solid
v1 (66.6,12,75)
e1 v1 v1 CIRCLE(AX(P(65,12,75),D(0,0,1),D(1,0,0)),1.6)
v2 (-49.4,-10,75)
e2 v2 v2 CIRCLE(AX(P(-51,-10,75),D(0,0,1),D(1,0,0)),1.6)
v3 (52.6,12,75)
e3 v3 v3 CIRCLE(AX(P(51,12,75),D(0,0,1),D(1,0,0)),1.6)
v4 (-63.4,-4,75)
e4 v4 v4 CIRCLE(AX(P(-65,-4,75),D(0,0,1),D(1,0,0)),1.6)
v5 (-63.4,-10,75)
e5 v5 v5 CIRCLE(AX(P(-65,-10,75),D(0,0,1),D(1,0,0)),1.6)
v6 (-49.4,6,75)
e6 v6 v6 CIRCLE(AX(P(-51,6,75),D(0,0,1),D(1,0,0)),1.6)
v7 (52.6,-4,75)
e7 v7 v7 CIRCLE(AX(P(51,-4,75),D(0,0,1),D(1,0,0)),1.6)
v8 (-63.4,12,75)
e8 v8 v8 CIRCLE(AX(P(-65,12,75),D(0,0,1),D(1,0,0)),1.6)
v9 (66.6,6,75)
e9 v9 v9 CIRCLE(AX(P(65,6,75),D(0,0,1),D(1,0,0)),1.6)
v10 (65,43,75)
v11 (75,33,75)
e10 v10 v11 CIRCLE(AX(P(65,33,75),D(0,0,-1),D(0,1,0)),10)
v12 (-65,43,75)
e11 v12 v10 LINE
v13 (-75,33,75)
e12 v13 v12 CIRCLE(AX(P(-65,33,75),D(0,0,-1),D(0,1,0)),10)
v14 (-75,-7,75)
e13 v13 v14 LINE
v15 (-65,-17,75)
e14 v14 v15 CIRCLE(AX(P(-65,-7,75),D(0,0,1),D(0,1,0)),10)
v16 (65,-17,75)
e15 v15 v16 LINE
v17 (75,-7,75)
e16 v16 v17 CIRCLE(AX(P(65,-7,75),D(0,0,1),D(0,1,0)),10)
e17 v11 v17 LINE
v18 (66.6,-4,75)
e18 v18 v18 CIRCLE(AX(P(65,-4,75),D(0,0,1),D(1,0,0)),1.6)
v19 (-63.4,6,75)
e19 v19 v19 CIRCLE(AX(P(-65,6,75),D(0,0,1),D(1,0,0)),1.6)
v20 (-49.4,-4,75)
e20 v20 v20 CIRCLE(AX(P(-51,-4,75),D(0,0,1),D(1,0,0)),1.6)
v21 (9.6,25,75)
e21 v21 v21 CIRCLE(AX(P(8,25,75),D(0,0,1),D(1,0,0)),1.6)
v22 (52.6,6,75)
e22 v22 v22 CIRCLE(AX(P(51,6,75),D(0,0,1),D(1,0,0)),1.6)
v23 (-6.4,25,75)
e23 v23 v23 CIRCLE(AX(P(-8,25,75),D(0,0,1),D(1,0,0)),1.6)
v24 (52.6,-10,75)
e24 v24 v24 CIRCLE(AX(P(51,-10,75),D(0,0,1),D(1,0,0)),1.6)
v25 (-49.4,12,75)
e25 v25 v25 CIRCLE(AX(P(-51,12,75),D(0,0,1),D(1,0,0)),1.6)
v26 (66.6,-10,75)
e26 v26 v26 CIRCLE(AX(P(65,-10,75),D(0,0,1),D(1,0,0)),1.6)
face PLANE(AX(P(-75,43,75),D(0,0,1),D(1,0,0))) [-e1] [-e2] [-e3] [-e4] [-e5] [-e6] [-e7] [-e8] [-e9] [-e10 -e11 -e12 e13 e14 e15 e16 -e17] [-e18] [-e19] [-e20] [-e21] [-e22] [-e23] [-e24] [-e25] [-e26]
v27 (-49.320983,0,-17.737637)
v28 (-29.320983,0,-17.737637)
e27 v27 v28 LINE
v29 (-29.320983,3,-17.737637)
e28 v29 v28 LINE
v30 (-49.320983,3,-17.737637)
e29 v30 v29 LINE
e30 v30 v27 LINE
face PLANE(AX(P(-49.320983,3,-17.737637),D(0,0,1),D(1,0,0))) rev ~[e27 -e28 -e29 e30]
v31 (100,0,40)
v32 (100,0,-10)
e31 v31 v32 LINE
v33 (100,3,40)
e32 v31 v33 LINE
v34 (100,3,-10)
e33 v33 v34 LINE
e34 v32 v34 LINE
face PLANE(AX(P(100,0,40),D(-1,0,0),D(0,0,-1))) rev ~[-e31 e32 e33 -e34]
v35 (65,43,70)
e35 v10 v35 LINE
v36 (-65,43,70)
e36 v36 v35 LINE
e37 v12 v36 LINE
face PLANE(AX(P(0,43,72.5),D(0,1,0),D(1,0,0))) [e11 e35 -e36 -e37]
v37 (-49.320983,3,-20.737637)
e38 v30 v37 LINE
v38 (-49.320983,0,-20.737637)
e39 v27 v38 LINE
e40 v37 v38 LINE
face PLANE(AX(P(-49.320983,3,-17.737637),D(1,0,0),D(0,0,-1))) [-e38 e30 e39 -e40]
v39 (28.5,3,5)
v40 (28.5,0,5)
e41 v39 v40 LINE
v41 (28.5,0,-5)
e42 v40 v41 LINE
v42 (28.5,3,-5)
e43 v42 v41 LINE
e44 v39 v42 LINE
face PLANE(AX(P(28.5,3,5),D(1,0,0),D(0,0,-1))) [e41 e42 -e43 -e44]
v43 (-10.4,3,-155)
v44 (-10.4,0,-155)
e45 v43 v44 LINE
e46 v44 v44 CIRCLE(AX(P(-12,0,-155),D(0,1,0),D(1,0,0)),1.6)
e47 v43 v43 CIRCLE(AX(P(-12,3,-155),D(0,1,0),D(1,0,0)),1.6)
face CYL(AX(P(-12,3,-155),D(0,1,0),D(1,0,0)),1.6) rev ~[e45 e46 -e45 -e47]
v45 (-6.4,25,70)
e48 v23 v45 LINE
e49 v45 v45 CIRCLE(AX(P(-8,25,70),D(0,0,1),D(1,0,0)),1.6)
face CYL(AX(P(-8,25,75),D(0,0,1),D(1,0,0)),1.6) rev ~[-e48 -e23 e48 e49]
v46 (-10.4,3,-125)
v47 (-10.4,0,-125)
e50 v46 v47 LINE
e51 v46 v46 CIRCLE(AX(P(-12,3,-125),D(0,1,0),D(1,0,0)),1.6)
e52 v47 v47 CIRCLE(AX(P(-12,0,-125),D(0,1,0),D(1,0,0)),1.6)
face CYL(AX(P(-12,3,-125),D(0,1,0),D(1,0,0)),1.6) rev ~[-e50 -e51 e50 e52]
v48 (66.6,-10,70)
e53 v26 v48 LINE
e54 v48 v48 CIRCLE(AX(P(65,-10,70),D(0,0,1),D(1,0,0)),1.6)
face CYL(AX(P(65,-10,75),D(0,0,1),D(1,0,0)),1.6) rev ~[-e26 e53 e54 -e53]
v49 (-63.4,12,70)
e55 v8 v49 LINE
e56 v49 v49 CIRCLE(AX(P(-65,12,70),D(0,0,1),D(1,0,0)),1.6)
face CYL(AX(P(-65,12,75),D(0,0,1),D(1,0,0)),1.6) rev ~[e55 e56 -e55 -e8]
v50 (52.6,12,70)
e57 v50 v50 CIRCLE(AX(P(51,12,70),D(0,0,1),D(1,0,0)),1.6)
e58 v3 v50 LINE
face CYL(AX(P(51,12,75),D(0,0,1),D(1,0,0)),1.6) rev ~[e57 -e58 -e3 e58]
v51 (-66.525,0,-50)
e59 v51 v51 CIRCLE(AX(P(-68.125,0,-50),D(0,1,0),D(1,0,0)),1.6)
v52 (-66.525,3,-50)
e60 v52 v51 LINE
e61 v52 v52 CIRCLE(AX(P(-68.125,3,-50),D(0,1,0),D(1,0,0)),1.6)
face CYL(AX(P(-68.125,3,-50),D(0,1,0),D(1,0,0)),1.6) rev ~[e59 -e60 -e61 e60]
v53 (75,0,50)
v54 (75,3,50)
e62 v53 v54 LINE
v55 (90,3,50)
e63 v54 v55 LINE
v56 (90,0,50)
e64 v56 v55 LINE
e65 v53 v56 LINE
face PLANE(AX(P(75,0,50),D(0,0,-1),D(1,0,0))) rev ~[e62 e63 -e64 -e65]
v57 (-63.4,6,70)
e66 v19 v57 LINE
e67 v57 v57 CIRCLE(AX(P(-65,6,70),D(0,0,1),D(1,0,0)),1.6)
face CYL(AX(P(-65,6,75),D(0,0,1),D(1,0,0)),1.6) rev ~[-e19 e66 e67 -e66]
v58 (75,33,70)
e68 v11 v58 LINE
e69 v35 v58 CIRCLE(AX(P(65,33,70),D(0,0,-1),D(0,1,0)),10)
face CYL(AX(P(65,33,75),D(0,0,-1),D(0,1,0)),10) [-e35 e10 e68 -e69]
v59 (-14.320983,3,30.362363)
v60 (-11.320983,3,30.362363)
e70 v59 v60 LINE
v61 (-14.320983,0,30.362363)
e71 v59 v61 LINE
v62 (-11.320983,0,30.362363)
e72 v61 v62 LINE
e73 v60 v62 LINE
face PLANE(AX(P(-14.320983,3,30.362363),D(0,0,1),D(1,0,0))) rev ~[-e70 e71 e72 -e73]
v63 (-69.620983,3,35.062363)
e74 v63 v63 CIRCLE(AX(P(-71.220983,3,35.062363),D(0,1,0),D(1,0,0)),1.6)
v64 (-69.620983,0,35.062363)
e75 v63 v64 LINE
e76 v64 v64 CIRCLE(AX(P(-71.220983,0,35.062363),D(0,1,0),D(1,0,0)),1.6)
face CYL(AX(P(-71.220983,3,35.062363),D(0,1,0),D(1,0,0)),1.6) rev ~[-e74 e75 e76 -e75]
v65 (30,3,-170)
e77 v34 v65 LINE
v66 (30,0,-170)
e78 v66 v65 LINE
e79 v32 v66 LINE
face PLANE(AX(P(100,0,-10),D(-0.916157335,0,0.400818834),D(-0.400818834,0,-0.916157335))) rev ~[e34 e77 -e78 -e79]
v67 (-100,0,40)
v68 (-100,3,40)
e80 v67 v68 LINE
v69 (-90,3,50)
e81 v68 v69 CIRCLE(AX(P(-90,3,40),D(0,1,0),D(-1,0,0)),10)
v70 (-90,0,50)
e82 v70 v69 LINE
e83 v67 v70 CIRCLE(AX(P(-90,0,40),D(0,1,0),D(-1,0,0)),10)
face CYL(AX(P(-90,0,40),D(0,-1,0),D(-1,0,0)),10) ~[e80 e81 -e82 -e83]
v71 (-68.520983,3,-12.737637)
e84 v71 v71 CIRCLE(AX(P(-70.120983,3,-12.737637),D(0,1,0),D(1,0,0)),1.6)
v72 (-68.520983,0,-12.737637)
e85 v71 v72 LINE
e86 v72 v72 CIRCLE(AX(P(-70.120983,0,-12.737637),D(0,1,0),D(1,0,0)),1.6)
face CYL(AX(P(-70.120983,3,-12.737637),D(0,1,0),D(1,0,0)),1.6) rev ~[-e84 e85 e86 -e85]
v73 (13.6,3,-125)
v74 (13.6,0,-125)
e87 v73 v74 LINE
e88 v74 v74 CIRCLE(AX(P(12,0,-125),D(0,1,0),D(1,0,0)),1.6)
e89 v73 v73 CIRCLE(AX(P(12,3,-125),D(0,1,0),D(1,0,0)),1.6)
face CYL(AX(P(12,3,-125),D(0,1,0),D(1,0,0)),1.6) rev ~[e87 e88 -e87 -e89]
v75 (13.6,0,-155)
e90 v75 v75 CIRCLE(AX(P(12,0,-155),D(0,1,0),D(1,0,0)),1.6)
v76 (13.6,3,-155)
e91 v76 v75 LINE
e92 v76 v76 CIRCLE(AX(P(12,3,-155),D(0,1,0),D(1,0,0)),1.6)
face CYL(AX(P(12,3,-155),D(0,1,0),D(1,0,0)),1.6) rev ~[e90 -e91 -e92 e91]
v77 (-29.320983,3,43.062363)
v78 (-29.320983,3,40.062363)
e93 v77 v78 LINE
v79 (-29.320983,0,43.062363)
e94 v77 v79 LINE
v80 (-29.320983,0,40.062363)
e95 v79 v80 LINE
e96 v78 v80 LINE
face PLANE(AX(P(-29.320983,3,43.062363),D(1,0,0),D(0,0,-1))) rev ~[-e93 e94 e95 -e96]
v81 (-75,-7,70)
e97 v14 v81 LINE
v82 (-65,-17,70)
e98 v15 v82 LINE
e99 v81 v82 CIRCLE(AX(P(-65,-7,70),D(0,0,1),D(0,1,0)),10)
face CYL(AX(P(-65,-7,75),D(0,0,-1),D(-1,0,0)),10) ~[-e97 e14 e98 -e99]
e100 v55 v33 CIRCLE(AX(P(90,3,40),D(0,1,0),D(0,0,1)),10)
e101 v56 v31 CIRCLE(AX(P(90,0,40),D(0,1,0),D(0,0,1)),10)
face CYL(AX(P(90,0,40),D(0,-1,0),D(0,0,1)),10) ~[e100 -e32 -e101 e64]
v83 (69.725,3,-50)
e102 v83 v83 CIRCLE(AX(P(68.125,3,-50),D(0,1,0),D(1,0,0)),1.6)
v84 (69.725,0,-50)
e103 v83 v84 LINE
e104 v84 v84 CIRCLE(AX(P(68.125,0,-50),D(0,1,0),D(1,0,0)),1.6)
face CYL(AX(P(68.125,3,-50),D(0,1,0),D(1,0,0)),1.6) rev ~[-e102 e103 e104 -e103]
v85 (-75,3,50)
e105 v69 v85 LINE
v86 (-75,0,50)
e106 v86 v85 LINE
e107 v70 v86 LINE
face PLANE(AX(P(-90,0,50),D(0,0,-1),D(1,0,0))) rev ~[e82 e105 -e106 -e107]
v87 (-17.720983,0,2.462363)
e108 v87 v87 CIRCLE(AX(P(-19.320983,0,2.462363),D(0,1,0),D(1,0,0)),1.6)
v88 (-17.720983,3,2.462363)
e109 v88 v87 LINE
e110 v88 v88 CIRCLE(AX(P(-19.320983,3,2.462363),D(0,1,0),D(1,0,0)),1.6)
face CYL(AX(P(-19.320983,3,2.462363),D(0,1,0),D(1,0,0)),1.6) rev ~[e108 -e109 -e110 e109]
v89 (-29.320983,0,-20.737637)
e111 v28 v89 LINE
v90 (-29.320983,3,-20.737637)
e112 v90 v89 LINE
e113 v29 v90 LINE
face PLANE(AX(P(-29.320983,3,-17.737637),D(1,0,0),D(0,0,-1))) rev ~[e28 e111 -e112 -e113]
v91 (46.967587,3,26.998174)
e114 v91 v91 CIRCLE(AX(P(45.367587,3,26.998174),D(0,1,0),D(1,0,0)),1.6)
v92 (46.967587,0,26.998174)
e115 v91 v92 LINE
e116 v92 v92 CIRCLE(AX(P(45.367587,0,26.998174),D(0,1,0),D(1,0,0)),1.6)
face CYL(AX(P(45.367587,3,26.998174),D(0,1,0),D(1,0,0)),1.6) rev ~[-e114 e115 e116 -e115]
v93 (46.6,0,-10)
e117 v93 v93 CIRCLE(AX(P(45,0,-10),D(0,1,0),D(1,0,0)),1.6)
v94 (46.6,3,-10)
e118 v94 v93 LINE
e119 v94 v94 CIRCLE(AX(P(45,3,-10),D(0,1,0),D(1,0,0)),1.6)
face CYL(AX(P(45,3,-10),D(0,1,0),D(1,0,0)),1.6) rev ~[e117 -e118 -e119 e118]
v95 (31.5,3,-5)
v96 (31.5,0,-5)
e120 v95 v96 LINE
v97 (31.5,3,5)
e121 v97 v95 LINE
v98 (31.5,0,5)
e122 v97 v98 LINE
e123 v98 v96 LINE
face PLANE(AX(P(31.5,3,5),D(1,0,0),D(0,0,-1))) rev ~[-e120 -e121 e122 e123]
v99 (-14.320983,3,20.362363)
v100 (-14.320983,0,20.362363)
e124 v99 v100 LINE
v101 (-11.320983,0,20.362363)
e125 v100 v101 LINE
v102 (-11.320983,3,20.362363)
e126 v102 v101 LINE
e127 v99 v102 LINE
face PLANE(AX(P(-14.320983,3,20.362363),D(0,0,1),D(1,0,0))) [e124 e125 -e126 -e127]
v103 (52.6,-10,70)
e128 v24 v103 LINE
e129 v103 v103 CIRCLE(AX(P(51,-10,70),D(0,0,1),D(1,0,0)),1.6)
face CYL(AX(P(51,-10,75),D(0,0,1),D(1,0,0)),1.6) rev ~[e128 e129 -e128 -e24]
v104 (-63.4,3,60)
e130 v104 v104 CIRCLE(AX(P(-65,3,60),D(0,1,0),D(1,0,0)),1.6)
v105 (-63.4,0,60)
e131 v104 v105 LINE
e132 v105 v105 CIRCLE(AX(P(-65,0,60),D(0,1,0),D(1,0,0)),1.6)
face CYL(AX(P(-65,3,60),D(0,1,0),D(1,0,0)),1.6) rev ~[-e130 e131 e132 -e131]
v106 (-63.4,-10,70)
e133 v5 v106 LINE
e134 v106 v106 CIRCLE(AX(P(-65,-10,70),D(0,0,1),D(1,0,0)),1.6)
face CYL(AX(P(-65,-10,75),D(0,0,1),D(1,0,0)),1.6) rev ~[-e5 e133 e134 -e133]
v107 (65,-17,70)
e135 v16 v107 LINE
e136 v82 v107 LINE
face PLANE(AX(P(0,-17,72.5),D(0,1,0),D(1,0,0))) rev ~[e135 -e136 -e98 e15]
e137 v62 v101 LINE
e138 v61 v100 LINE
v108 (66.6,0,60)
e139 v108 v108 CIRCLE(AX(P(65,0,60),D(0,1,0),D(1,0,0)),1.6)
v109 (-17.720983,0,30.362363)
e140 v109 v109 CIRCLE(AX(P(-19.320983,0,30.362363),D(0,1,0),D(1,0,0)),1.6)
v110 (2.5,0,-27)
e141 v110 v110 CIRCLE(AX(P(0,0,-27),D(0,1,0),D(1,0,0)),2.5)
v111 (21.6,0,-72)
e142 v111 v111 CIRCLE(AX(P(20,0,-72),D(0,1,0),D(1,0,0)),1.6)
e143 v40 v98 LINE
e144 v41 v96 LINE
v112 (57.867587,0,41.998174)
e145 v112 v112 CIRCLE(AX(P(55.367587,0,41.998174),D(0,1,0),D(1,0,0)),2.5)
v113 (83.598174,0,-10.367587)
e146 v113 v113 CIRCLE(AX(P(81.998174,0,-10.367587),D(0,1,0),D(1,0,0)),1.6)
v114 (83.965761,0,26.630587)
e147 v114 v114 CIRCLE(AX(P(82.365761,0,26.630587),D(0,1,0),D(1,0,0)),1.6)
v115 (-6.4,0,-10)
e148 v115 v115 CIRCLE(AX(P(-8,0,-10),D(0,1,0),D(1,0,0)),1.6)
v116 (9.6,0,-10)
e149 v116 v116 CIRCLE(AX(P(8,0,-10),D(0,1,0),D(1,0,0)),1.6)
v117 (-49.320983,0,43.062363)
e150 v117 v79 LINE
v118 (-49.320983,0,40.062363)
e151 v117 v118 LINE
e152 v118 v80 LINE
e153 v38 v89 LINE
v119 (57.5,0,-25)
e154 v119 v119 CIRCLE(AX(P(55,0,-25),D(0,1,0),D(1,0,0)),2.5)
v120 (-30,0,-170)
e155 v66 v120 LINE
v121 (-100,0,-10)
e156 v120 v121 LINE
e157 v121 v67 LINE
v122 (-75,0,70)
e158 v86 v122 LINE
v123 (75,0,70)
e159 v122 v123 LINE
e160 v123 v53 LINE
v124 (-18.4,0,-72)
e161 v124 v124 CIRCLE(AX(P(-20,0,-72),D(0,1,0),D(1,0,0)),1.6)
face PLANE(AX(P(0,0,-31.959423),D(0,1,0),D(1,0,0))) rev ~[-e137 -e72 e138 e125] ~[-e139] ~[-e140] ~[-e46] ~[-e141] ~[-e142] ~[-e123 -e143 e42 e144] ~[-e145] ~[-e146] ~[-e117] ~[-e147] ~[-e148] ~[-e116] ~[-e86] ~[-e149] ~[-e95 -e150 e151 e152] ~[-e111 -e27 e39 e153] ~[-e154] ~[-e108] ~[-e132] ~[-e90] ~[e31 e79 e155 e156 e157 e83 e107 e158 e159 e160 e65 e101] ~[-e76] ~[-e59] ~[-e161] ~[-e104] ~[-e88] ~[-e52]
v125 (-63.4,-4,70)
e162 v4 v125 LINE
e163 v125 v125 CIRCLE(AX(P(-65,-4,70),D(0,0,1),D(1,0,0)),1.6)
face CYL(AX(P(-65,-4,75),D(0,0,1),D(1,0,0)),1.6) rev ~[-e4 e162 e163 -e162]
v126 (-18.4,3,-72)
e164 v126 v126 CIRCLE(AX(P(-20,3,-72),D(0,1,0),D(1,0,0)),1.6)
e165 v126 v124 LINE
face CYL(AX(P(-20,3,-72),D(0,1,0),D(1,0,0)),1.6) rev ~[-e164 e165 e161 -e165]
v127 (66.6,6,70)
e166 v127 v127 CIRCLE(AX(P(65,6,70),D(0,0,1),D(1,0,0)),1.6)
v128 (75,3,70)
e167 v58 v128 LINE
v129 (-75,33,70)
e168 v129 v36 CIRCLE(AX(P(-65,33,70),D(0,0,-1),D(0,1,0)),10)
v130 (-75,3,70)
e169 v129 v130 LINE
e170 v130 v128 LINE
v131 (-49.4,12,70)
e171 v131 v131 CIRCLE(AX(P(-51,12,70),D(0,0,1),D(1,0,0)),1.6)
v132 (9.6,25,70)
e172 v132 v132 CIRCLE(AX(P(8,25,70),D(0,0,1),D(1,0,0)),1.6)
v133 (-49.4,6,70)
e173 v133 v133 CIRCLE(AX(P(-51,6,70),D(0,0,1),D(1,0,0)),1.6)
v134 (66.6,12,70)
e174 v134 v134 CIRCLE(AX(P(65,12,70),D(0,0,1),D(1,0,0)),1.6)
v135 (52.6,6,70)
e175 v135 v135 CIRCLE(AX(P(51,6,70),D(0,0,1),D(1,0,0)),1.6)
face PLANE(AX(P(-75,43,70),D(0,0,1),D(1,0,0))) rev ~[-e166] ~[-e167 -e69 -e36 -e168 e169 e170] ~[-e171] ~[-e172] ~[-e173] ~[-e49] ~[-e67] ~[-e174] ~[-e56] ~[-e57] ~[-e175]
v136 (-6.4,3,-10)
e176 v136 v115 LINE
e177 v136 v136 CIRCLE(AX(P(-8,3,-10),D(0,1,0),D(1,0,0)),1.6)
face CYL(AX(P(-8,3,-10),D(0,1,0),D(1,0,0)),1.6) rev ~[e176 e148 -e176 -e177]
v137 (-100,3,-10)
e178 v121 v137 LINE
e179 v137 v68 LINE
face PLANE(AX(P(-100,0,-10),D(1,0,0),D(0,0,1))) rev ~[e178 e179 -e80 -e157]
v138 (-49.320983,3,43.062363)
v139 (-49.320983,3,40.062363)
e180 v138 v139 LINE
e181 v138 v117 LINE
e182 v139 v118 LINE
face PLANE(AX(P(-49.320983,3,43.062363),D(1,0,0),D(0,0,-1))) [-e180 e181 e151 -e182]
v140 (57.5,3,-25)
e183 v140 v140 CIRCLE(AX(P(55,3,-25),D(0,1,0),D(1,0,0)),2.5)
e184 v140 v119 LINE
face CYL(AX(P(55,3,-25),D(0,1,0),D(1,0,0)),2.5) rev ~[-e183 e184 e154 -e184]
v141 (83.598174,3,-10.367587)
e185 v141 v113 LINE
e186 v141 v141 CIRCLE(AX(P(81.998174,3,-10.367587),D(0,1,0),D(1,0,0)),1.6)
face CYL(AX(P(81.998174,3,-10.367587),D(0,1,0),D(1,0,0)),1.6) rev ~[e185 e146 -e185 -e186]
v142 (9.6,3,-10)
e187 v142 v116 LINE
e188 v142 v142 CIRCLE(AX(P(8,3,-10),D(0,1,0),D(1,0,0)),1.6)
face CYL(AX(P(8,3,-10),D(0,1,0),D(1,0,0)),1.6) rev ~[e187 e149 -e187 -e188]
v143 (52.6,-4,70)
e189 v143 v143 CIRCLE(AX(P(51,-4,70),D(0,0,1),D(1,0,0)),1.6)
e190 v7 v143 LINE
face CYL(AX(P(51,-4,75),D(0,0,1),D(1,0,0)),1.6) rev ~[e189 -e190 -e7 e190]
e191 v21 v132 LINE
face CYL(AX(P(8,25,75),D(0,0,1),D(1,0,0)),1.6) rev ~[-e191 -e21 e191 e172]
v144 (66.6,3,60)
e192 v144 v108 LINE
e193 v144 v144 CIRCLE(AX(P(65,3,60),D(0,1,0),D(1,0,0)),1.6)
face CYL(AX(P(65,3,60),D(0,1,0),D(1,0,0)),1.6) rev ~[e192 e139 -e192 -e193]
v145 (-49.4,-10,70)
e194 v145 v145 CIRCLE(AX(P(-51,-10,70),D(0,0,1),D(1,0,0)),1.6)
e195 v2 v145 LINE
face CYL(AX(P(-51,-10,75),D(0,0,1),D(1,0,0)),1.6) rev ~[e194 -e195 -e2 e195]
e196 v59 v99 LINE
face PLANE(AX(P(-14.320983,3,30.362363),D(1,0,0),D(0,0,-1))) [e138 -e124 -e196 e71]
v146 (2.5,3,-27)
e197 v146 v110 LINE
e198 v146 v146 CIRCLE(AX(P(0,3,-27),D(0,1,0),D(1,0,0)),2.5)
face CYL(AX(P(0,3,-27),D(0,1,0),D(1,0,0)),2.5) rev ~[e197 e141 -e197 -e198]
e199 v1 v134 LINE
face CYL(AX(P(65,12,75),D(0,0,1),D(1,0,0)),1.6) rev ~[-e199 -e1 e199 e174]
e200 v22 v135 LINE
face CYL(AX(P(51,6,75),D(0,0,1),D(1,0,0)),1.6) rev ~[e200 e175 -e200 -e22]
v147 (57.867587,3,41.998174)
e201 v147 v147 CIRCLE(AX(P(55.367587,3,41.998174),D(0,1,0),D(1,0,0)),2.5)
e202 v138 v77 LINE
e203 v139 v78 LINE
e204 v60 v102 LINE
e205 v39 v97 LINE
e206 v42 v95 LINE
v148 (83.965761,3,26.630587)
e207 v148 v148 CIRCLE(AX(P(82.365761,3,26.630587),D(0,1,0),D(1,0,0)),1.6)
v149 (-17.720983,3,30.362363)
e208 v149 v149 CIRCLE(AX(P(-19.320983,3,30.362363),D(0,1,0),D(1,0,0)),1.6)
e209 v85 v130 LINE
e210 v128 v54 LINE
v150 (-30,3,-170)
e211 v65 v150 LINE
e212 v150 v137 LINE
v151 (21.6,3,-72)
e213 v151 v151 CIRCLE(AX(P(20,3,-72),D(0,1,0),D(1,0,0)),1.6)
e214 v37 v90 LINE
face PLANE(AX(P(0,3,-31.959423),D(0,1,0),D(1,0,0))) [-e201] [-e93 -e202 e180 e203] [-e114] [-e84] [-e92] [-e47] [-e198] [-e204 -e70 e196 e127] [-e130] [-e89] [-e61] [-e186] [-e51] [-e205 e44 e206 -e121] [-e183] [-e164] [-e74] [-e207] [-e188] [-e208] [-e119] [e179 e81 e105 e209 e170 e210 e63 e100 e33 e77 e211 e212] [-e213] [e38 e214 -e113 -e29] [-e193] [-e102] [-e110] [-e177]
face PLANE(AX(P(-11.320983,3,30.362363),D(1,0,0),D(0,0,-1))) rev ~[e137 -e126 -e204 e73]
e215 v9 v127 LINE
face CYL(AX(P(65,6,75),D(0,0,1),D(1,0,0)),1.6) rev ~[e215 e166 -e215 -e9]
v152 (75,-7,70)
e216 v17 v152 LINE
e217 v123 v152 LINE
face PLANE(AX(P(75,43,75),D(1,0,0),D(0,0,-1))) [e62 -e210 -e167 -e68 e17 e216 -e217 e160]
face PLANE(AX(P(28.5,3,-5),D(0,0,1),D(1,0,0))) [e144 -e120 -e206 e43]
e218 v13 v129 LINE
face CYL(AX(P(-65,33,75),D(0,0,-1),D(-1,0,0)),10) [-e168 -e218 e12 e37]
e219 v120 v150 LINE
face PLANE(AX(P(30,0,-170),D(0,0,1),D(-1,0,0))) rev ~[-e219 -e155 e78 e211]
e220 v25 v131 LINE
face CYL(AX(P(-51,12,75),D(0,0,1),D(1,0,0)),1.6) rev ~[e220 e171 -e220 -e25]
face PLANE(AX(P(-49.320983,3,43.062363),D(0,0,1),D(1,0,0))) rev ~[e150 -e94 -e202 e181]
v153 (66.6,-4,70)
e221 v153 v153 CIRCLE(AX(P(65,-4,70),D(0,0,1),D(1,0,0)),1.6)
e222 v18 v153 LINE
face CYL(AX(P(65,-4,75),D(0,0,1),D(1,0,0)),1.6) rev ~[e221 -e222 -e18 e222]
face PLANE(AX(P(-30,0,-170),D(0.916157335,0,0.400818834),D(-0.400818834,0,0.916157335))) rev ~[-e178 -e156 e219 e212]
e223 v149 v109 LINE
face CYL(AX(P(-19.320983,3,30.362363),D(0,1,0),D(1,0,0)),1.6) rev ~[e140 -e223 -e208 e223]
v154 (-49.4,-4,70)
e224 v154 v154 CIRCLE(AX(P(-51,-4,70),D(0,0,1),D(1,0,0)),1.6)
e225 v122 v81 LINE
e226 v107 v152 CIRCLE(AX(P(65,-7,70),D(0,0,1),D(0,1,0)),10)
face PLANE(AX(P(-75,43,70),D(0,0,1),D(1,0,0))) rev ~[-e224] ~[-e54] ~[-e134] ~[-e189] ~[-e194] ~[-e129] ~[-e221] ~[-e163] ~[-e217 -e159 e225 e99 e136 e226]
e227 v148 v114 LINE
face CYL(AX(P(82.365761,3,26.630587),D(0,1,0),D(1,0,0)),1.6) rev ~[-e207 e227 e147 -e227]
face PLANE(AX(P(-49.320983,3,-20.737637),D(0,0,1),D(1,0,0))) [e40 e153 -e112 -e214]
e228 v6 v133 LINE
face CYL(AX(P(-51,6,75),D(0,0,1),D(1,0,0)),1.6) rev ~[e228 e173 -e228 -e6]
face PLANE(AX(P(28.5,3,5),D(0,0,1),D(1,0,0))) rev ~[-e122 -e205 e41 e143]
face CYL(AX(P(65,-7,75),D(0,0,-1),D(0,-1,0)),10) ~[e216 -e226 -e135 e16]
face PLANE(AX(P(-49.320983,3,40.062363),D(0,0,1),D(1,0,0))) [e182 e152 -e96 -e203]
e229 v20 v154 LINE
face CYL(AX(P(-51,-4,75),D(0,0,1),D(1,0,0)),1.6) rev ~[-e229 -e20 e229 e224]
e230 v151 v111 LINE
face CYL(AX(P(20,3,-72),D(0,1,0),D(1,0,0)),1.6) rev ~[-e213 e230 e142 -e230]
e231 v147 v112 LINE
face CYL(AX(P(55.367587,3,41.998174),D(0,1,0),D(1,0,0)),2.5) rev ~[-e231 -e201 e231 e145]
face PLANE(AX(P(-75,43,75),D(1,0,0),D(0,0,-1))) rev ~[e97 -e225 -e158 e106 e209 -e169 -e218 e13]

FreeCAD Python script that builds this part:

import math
import FreeCAD as App
import Part
import Sketcher
from FreeCAD import Vector


def edges_at(feature, points):
    """Names of the edges that pass closest to the given points."""
    edges = feature.Shape.Edges
    near = lambda p: min(range(len(edges)), key=lambda i: edges[i].distToShape(Part.Vertex(*p))[0])
    return sorted({f"Edge{near(p) + 1}" for p in points})

doc = App.newDocument("Part")
params = doc.addObject("Spreadsheet::Sheet", "Params")
for row, (alias, value) in enumerate([
    ("sketch1_radius", "10 mm"),
    ("sketch1_width", "60 mm"),
    ("sketch1_width2", "15 mm"),
    ("sketch1_width3", "150 mm"),
    ("sketch1_height", "50 mm"),
    ("pad1_length", "3 mm"),
    ("sketch2_diameter", "3.2 mm"),
    ("sketch2_width", "20 mm"),
    ("sketch2_width2", "3 mm"),
    ("sketch2_height", "10 mm"),
    ("sketch3_diameter", "3.2 mm"),
    ("sketch4_diameter", "3.2 mm"),
    ("pocket3_length", "10 mm"),
    ("sketch5_diameter", "5 mm"),
    ("sketch5_diameter2", "3.2 mm"),
    ("sketch5_width", "3 mm"),
    ("sketch5_height", "10 mm"),
    ("pocket4_length", "10 mm"),
    ("sketch6_width", "150 mm"),
    ("sketch6_height", "5 mm"),
    ("pad2_length", "60 mm"),
    ("fillet_radius", "10 mm"),
    ("sketch7_diameter", "3.2 mm"),
    ("pocket5_length", "10 mm"),
], start=1):
    params.set(f"A{row}", alias)
    params.set(f"B{row}", "=" + value)
    params.setAlias(f"B{row}", alias)

body = doc.addObject("PartDesign::Body", "Body")

# Sketch on XZ plane
sketch1 = doc.addObject("Sketcher::SketchObject", "Sketch")
body.addObject(sketch1)
sketch1.AttachmentSupport = (doc.XZ_Plane, [""])
sketch1.MapMode = "FlatFace"
sketch1.addGeometry(Part.LineSegment(Vector(100, 40, 0), Vector(100, -10, 0)), False)
sketch1.addGeometry(Part.LineSegment(Vector(100, -10, 0), Vector(30, -170, 0)), False)
sketch1.addGeometry(Part.LineSegment(Vector(30, -170, 0), Vector(-30, -170, 0)), False)
sketch1.addGeometry(Part.LineSegment(Vector(-30, -170, 0), Vector(-100, -10, 0)), False)
sketch1.addGeometry(Part.LineSegment(Vector(-100, -10, 0), Vector(-100, 40, 0)), False)
sketch1.addGeometry(Part.ArcOfCircle(Part.Circle(Vector(-90, 40, 0), Vector(0, 0, 1), 10), math.radians(90), math.radians(180)), False)
sketch1.addGeometry(Part.LineSegment(Vector(-90, 50, 0), Vector(-75, 50, 0)), False)
sketch1.addGeometry(Part.LineSegment(Vector(-75, 50, 0), Vector(-75, 70, 0)), False)
sketch1.addGeometry(Part.LineSegment(Vector(-75, 70, 0), Vector(75, 70, 0)), False)
sketch1.addGeometry(Part.LineSegment(Vector(75, 70, 0), Vector(75, 50, 0)), False)
sketch1.addGeometry(Part.LineSegment(Vector(75, 50, 0), Vector(90, 50, 0)), False)
sketch1.addGeometry(Part.ArcOfCircle(Part.Circle(Vector(90, 40, 0), Vector(0, 0, 1), 10), math.radians(0), math.radians(90)), False)
sketch1.addConstraint(Sketcher.Constraint("Coincident", 0, 2, 1, 1))
sketch1.addConstraint(Sketcher.Constraint("Coincident", 1, 2, 2, 1))
sketch1.addConstraint(Sketcher.Constraint("Coincident", 2, 2, 3, 1))
sketch1.addConstraint(Sketcher.Constraint("Coincident", 3, 2, 4, 1))
sketch1.addConstraint(Sketcher.Constraint("Tangent", 4, 2, 5, 2))
sketch1.addConstraint(Sketcher.Constraint("Tangent", 5, 1, 6, 1))
sketch1.addConstraint(Sketcher.Constraint("Coincident", 6, 2, 7, 1))
sketch1.addConstraint(Sketcher.Constraint("Coincident", 7, 2, 8, 1))
sketch1.addConstraint(Sketcher.Constraint("Coincident", 8, 2, 9, 1))
sketch1.addConstraint(Sketcher.Constraint("Coincident", 9, 2, 10, 1))
sketch1.addConstraint(Sketcher.Constraint("Tangent", 10, 2, 11, 2))
sketch1.addConstraint(Sketcher.Constraint("Tangent", 11, 1, 0, 1))
sketch1.addConstraint(Sketcher.Constraint("Vertical", 0))
sketch1.addConstraint(Sketcher.Constraint("Horizontal", 2))
sketch1.addConstraint(Sketcher.Constraint("Vertical", 4))
sketch1.addConstraint(Sketcher.Constraint("Horizontal", 6))
sketch1.addConstraint(Sketcher.Constraint("Vertical", 7))
sketch1.addConstraint(Sketcher.Constraint("Horizontal", 8))
sketch1.addConstraint(Sketcher.Constraint("Vertical", 9))
sketch1.addConstraint(Sketcher.Constraint("Horizontal", 10))
sketch1.addConstraint(Sketcher.Constraint("Equal", 5, 11))
sketch1.addConstraint(Sketcher.Constraint("Symmetric", 5, 3, 11, 3, -2))
sketch1.addConstraint(Sketcher.Constraint("Horizontal", 0, 2, 3, 2))
sketch1.addConstraint(Sketcher.Constraint("Equal", 6, 10))
sketch1.addConstraint(Sketcher.Constraint("Equal", 1, 3))
sketch1.addConstraint(Sketcher.Constraint("Radius", 5, 10.0))
sketch1.addConstraint(Sketcher.Constraint("DistanceX", 2, 2, 2, 1, 60.0))
sketch1.addConstraint(Sketcher.Constraint("DistanceX", 6, 1, 6, 2, 15.0))
sketch1.addConstraint(Sketcher.Constraint("DistanceX", 8, 1, 8, 2, 150.0))
sketch1.addConstraint(Sketcher.Constraint("DistanceY", 0, 2, 0, 1, 50.0))
sketch1.addConstraint(Sketcher.Constraint("DistanceY", 7, 1, 7, 2, 20.0))
sketch1.addConstraint(Sketcher.Constraint("DistanceY", -1, 1, 5, 3, 40.0))
sketch1.addConstraint(Sketcher.Constraint("DistanceY", 1, 2, -1, 1, 170.0))
sketch1.setExpression("Constraints[25]", "Params.sketch1_radius")
sketch1.setExpression("Constraints[26]", "Params.sketch1_width")
sketch1.setExpression("Constraints[27]", "Params.sketch1_width2")
sketch1.setExpression("Constraints[28]", "Params.sketch1_width3")
sketch1.setExpression("Constraints[29]", "Params.sketch1_height")
pad1 = doc.addObject("PartDesign::Pad", "Pad")
body.addObject(pad1)
pad1.Profile = sketch1
pad1.setExpression("Length", "Params.pad1_length")
pad1.Reversed = True

# Sketch on XZ plane
sketch2 = doc.addObject("Sketcher::SketchObject", "Sketch001")
body.addObject(sketch2)
sketch2.AttachmentSupport = (doc.XZ_Plane, [""])
sketch2.MapMode = "FlatFace"
sketch2.AttachmentOffset = App.Placement(Vector(0, 0, -3), App.Rotation())
sketch2.addGeometry(Part.Circle(Vector(-70.1, -12.7, 0), Vector(0, 0, 1), 1.6), False)
sketch2.addGeometry(Part.Circle(Vector(-71.2, 35.1, 0), Vector(0, 0, 1), 1.6), False)
sketch2.addGeometry(Part.Circle(Vector(-19.3, 2.5, 0), Vector(0, 0, 1), 1.6), False)
sketch2.addGeometry(Part.Circle(Vector(-19.3, 30.4, 0), Vector(0, 0, 1), 1.6), False)
sketch2.addGeometry(Part.LineSegment(Vector(-49.3, 40.1, 0), Vector(-49.3, 43.1, 0)), False)
sketch2.addGeometry(Part.LineSegment(Vector(-49.3, 43.1, 0), Vector(-29.3, 43.1, 0)), False)
sketch2.addGeometry(Part.LineSegment(Vector(-29.3, 43.1, 0), Vector(-29.3, 40.1, 0)), False)
sketch2.addGeometry(Part.LineSegment(Vector(-29.3, 40.1, 0), Vector(-49.3, 40.1, 0)), False)
sketch2.addGeometry(Part.LineSegment(Vector(-49.3, -20.7, 0), Vector(-49.3, -17.7, 0)), False)
sketch2.addGeometry(Part.LineSegment(Vector(-49.3, -17.7, 0), Vector(-29.3, -17.7, 0)), False)
sketch2.addGeometry(Part.LineSegment(Vector(-29.3, -17.7, 0), Vector(-29.3, -20.7, 0)), False)
sketch2.addGeometry(Part.LineSegment(Vector(-29.3, -20.7, 0), Vector(-49.3, -20.7, 0)), False)
sketch2.addGeometry(Part.LineSegment(Vector(-14.3, 20.4, 0), Vector(-14.3, 30.4, 0)), False)
sketch2.addGeometry(Part.LineSegment(Vector(-14.3, 30.4, 0), Vector(-11.3, 30.4, 0)), False)
sketch2.addGeometry(Part.LineSegment(Vector(-11.3, 30.4, 0), Vector(-11.3, 20.4, 0)), False)
sketch2.addGeometry(Part.LineSegment(Vector(-11.3, 20.4, 0), Vector(-14.3, 20.4, 0)), False)
sketch2.addConstraint(Sketcher.Constraint("Coincident", 4, 2, 5, 1))
sketch2.addConstraint(Sketcher.Constraint("Coincident", 5, 2, 6, 1))
sketch2.addConstraint(Sketcher.Constraint("Coincident", 6, 2, 7, 1))
sketch2.addConstraint(Sketcher.Constraint("Coincident", 7, 2, 4, 1))
sketch2.addConstraint(Sketcher.Constraint("Coincident", 8, 2, 9, 1))
sketch2.addConstraint(Sketcher.Constraint("Coincident", 9, 2, 10, 1))
sketch2.addConstraint(Sketcher.Constraint("Coincident", 10, 2, 11, 1))
sketch2.addConstraint(Sketcher.Constraint("Coincident", 11, 2, 8, 1))
sketch2.addConstraint(Sketcher.Constraint("Coincident", 12, 2, 13, 1))
sketch2.addConstraint(Sketcher.Constraint("Coincident", 13, 2, 14, 1))
sketch2.addConstraint(Sketcher.Constraint("Coincident", 14, 2, 15, 1))
sketch2.addConstraint(Sketcher.Constraint("Coincident", 15, 2, 12, 1))
sketch2.addConstraint(Sketcher.Constraint("Vertical", 4))
sketch2.addConstraint(Sketcher.Constraint("Horizontal", 5))
sketch2.addConstraint(Sketcher.Constraint("Vertical", 6))
sketch2.addConstraint(Sketcher.Constraint("Horizontal", 7))
sketch2.addConstraint(Sketcher.Constraint("Vertical", 8))
sketch2.addConstraint(Sketcher.Constraint("Horizontal", 9))
sketch2.addConstraint(Sketcher.Constraint("Vertical", 10))
sketch2.addConstraint(Sketcher.Constraint("Horizontal", 11))
sketch2.addConstraint(Sketcher.Constraint("Vertical", 12))
sketch2.addConstraint(Sketcher.Constraint("Horizontal", 13))
sketch2.addConstraint(Sketcher.Constraint("Vertical", 14))
sketch2.addConstraint(Sketcher.Constraint("Horizontal", 15))
sketch2.addConstraint(Sketcher.Constraint("Equal", 0, 1))
sketch2.addConstraint(Sketcher.Constraint("Equal", 1, 2))
sketch2.addConstraint(Sketcher.Constraint("Equal", 2, 3))
sketch2.addConstraint(Sketcher.Constraint("Horizontal", 3, 3, 12, 2))
sketch2.addConstraint(Sketcher.Constraint("Vertical", 2, 3, 3, 3))
sketch2.addConstraint(Sketcher.Constraint("Vertical", 7, 2, 8, 2))
sketch2.addConstraint(Sketcher.Constraint("Vertical", 6, 2, 9, 2))
sketch2.addConstraint(Sketcher.Constraint("Equal", 15, 4))
sketch2.addConstraint(Sketcher.Constraint("Equal", 6, 8))
sketch2.addConstraint(Sketcher.Constraint("Diameter", 0, 3.2))
sketch2.addConstraint(Sketcher.Constraint("DistanceX", 5, 1, 5, 2, 20.0))
sketch2.addConstraint(Sketcher.Constraint("DistanceX", 13, 1, 13, 2, 3.0))
sketch2.addConstraint(Sketcher.Constraint("DistanceY", 12, 1, 12, 2, 10.0))
sketch2.addConstraint(Sketcher.Constraint("DistanceY", 1, 3, 4, 2, 8.0))
sketch2.addConstraint(Sketcher.Constraint("DistanceX", 4, 2, 3, 3, 30.0))
sketch2.addConstraint(Sketcher.Constraint("DistanceY", 8, 2, 0, 3, 5.0))
sketch2.addConstraint(Sketcher.Constraint("DistanceX", 3, 3, 12, 2, 5.0))
sketch2.addConstraint(Sketcher.Constraint("DistanceX", 1, 3, 0, 3, 1.1))
sketch2.addConstraint(Sketcher.Constraint("DistanceY", 0, 3, 1, 3, 47.8))
sketch2.addConstraint(Sketcher.Constraint("DistanceX", 0, 3, 2, 3, 50.8))
sketch2.addConstraint(Sketcher.Constraint("DistanceY", 0, 3, 2, 3, 15.2))
sketch2.addConstraint(Sketcher.Constraint("DistanceY", 2, 3, 3, 3, 27.9))
sketch2.addConstraint(Sketcher.Constraint("DistanceX", 0, 3, -1, 1, 70.120983))
sketch2.addConstraint(Sketcher.Constraint("DistanceY", 0, 3, -1, 1, 12.737637))
sketch2.setExpression("Constraints[33]", "Params.sketch2_diameter")
sketch2.setExpression("Constraints[34]", "Params.sketch2_width")
sketch2.setExpression("Constraints[35]", "Params.sketch2_width2")
sketch2.setExpression("Constraints[36]", "Params.sketch2_height")
pocket1 = doc.addObject("PartDesign::Pocket", "Pocket")
body.addObject(pocket1)
pocket1.Profile = sketch2
pocket1.Type = "ThroughAll"
pocket1.Reversed = True

# Sketch on XZ plane
sketch3 = doc.addObject("Sketcher::SketchObject", "Sketch002")
body.addObject(sketch3)
sketch3.AttachmentSupport = (doc.XZ_Plane, [""])
sketch3.MapMode = "FlatFace"
sketch3.AttachmentOffset = App.Placement(Vector(0, 0, -3), App.Rotation())
sketch3.addGeometry(Part.Circle(Vector(12, -155, 0), Vector(0, 0, 1), 1.6), False)
sketch3.addGeometry(Part.Circle(Vector(-12, -155, 0), Vector(0, 0, 1), 1.6), False)
sketch3.addGeometry(Part.Circle(Vector(12, -125, 0), Vector(0, 0, 1), 1.6), False)
sketch3.addGeometry(Part.Circle(Vector(-12, -125, 0), Vector(0, 0, 1), 1.6), False)
sketch3.addConstraint(Sketcher.Constraint("Equal", 0, 1))
sketch3.addConstraint(Sketcher.Constraint("Equal", 1, 2))
sketch3.addConstraint(Sketcher.Constraint("Equal", 2, 3))
sketch3.addConstraint(Sketcher.Constraint("Symmetric", 0, 3, 1, 3, -2))
sketch3.addConstraint(Sketcher.Constraint("Symmetric", 2, 3, 3, 3, -2))
sketch3.addConstraint(Sketcher.Constraint("Vertical", 0, 3, 2, 3))
sketch3.addConstraint(Sketcher.Constraint("Diameter", 0, 3.2))
sketch3.addConstraint(Sketcher.Constraint("DistanceX", -1, 1, 0, 3, 12.0))
sketch3.addConstraint(Sketcher.Constraint("DistanceY", 0, 3, -1, 1, 155.0))
sketch3.addConstraint(Sketcher.Constraint("DistanceY", 2, 3, -1, 1, 125.0))
sketch3.setExpression("Constraints[6]", "Params.sketch3_diameter")
pocket2 = doc.addObject("PartDesign::Pocket", "Pocket001")
body.addObject(pocket2)
pocket2.Profile = sketch3
pocket2.Type = "ThroughAll"
pocket2.Reversed = True

# Sketch on XZ plane
sketch4 = doc.addObject("Sketcher::SketchObject", "Sketch003")
body.addObject(sketch4)
sketch4.AttachmentSupport = (doc.XZ_Plane, [""])
sketch4.MapMode = "FlatFace"
sketch4.AttachmentOffset = App.Placement(Vector(0, 0, -3), App.Rotation())
sketch4.addGeometry(Part.Circle(Vector(8, -10, 0), Vector(0, 0, 1), 1.6), False)
sketch4.addGeometry(Part.Circle(Vector(-8, -10, 0), Vector(0, 0, 1), 1.6), False)
sketch4.addGeometry(Part.Circle(Vector(-65, 60, 0), Vector(0, 0, 1), 1.6), False)
sketch4.addGeometry(Part.Circle(Vector(65, 60, 0), Vector(0, 0, 1), 1.6), False)
sketch4.addConstraint(Sketcher.Constraint("Equal", 0, 1))
sketch4.addConstraint(Sketcher.Constraint("Equal", 1, 2))
sketch4.addConstraint(Sketcher.Constraint("Equal", 2, 3))
sketch4.addConstraint(Sketcher.Constraint("Symmetric", 0, 3, 1, 3, -2))
sketch4.addConstraint(Sketcher.Constraint("Symmetric", 2, 3, 3, 3, -2))
sketch4.addConstraint(Sketcher.Constraint("Diameter", 0, 3.2))
sketch4.addConstraint(Sketcher.Constraint("DistanceX", -1, 1, 0, 3, 8.0))
sketch4.addConstraint(Sketcher.Constraint("DistanceY", 0, 3, -1, 1, 10.0))
sketch4.addConstraint(Sketcher.Constraint("DistanceX", 2, 3, -1, 1, 65.0))
sketch4.addConstraint(Sketcher.Constraint("DistanceY", -1, 1, 2, 3, 60.0))
sketch4.setExpression("Constraints[5]", "Params.sketch4_diameter")
pocket3 = doc.addObject("PartDesign::Pocket", "Pocket002")
body.addObject(pocket3)
pocket3.Profile = sketch4
pocket3.setExpression("Length", "Params.pocket3_length")
pocket3.Reversed = True

# Sketch on XZ plane
sketch5 = doc.addObject("Sketcher::SketchObject", "Sketch004")
body.addObject(sketch5)
sketch5.AttachmentSupport = (doc.XZ_Plane, [""])
sketch5.MapMode = "FlatFace"
sketch5.AttachmentOffset = App.Placement(Vector(0, 0, -3), App.Rotation())
sketch5.addGeometry(Part.Circle(Vector(20, -72, 0), Vector(0, 0, 1), 1.6), False)
sketch5.addGeometry(Part.Circle(Vector(-20, -72, 0), Vector(0, 0, 1), 1.6), False)
sketch5.addGeometry(Part.Circle(Vector(45, -10, 0), Vector(0, 0, 1), 1.6), False)
sketch5.addGeometry(Part.Circle(Vector(82, -10.4, 0), Vector(0, 0, 1), 1.6), False)
sketch5.addGeometry(Part.Circle(Vector(82.4, 26.6, 0), Vector(0, 0, 1), 1.6), False)
sketch5.addGeometry(Part.Circle(Vector(45.4, 27, 0), Vector(0, 0, 1), 1.6), False)
sketch5.addGeometry(Part.Circle(Vector(-68.1, -50, 0), Vector(0, 0, 1), 1.6), False)
sketch5.addGeometry(Part.Circle(Vector(68.1, -50, 0), Vector(0, 0, 1), 1.6), False)
sketch5.addGeometry(Part.Circle(Vector(55, -25, 0), Vector(0, 0, 1), 2.5), False)
sketch5.addGeometry(Part.Circle(Vector(55.4, 42, 0), Vector(0, 0, 1), 2.5), False)
sketch5.addGeometry(Part.Circle(Vector(0, -27, 0), Vector(0, 0, 1), 2.5), False)
sketch5.addGeometry(Part.LineSegment(Vector(28.5, -5, 0), Vector(28.5, 5, 0)), False)
sketch5.addGeometry(Part.LineSegment(Vector(28.5, 5, 0), Vector(31.5, 5, 0)), False)
sketch5.addGeometry(Part.LineSegment(Vector(31.5, 5, 0), Vector(31.5, -5, 0)), False)
sketch5.addGeometry(Part.LineSegment(Vector(31.5, -5, 0), Vector(28.5, -5, 0)), False)
sketch5.addConstraint(Sketcher.Constraint("Coincident", 11, 2, 12, 1))
sketch5.addConstraint(Sketcher.Constraint("Coincident", 12, 2, 13, 1))
sketch5.addConstraint(Sketcher.Constraint("Coincident", 13, 2, 14, 1))
sketch5.addConstraint(Sketcher.Constraint("Coincident", 14, 2, 11, 1))
sketch5.addConstraint(Sketcher.Constraint("Vertical", 11))
sketch5.addConstraint(Sketcher.Constraint("Horizontal", 12))
sketch5.addConstraint(Sketcher.Constraint("Vertical", 13))
sketch5.addConstraint(Sketcher.Constraint("Horizontal", 14))
sketch5.addConstraint(Sketcher.Constraint("Equal", 0, 1))
sketch5.addConstraint(Sketcher.Constraint("Equal", 1, 2))
sketch5.addConstraint(Sketcher.Constraint("Equal", 2, 3))
sketch5.addConstraint(Sketcher.Constraint("Equal", 3, 4))
sketch5.addConstraint(Sketcher.Constraint("Equal", 4, 5))
sketch5.addConstraint(Sketcher.Constraint("Equal", 5, 6))
sketch5.addConstraint(Sketcher.Constraint("Equal", 6, 7))
sketch5.addConstraint(Sketcher.Constraint("Equal", 8, 9))
sketch5.addConstraint(Sketcher.Constraint("Equal", 9, 10))
sketch5.addConstraint(Sketcher.Constraint("Symmetric", 0, 3, 1, 3, -2))
sketch5.addConstraint(Sketcher.Constraint("Symmetric", 6, 3, 7, 3, -2))
sketch5.addConstraint(Sketcher.Constraint("PointOnObject", 10, 3, -2))
sketch5.addConstraint(Sketcher.Constraint("Diameter", 8, 5.0))
sketch5.addConstraint(Sketcher.Constraint("Diameter", 0, 3.2))
sketch5.addConstraint(Sketcher.Constraint("DistanceX", 12, 1, 12, 2, 3.0))
sketch5.addConstraint(Sketcher.Constraint("DistanceY", 11, 1, 11, 2, 10.0))
sketch5.addConstraint(Sketcher.Constraint("DistanceX", -1, 1, 0, 3, 20.0))
sketch5.addConstraint(Sketcher.Constraint("DistanceY", 0, 3, -1, 1, 72.0))
sketch5.addConstraint(Sketcher.Constraint("DistanceX", -1, 1, 2, 3, 45.0))
sketch5.addConstraint(Sketcher.Constraint("DistanceY", 2, 3, -1, 1, 10.0))
sketch5.addConstraint(Sketcher.Constraint("DistanceY", 6, 3, -1, 1, 50.0))
sketch5.addConstraint(Sketcher.Constraint("DistanceX", -1, 1, 8, 3, 55.0))
sketch5.addConstraint(Sketcher.Constraint("DistanceY", 8, 3, -1, 1, 25.0))
sketch5.addConstraint(Sketcher.Constraint("DistanceY", 10, 3, -1, 1, 27.0))
sketch5.addConstraint(Sketcher.Constraint("DistanceY", -1, 1, 11, 2, 5.0))
sketch5.addConstraint(Sketcher.Constraint("DistanceX", 5, 3, 9, 3, 10.0))
sketch5.addConstraint(Sketcher.Constraint("DistanceY", 5, 3, 9, 3, 15.0))
sketch5.addConstraint(Sketcher.Constraint("DistanceX", -1, 1, 11, 2, 28.5))
sketch5.addConstraint(Sketcher.Constraint("DistanceX", 6, 3, -1, 1, 68.125))
sketch5.addConstraint(Sketcher.Constraint("DistanceX", -1, 1, 4, 3, 82.365761))
sketch5.addConstraint(Sketcher.Constraint("DistanceY", 3, 3, 5, 3, 37.365761))
sketch5.addConstraint(Sketcher.Constraint("DistanceX", -1, 1, 3, 3, 81.998174))
sketch5.addConstraint(Sketcher.Constraint("DistanceY", 3, 3, -1, 1, 10.367587))
sketch5.addConstraint(Sketcher.Constraint("DistanceY", -1, 1, 4, 3, 26.630587))
sketch5.addConstraint(Sketcher.Constraint("DistanceX", -1, 1, 5, 3, 45.367587))
sketch5.setExpression("Constraints[20]", "Params.sketch5_diameter")
sketch5.setExpression("Constraints[21]", "Params.sketch5_diameter2")
sketch5.setExpression("Constraints[22]", "Params.sketch5_width")
sketch5.setExpression("Constraints[23]", "Params.sketch5_height")
pocket4 = doc.addObject("PartDesign::Pocket", "Pocket003")
body.addObject(pocket4)
pocket4.Profile = sketch5
pocket4.setExpression("Length", "Params.pocket4_length")
pocket4.Reversed = True

# Sketch on XZ plane
sketch6 = doc.addObject("Sketcher::SketchObject", "Sketch005")
body.addObject(sketch6)
sketch6.AttachmentSupport = (doc.XZ_Plane, [""])
sketch6.MapMode = "FlatFace"
sketch6.AttachmentOffset = App.Placement(Vector(0, 0, -43), App.Rotation())
sketch6.addGeometry(Part.LineSegment(Vector(-75, 70, 0), Vector(-75, 75, 0)), False)
sketch6.addGeometry(Part.LineSegment(Vector(-75, 75, 0), Vector(75, 75, 0)), False)
sketch6.addGeometry(Part.LineSegment(Vector(75, 75, 0), Vector(75, 70, 0)), False)
sketch6.addGeometry(Part.LineSegment(Vector(75, 70, 0), Vector(-75, 70, 0)), False)
sketch6.addConstraint(Sketcher.Constraint("Coincident", 0, 2, 1, 1))
sketch6.addConstraint(Sketcher.Constraint("Coincident", 1, 2, 2, 1))
sketch6.addConstraint(Sketcher.Constraint("Coincident", 2, 2, 3, 1))
sketch6.addConstraint(Sketcher.Constraint("Coincident", 3, 2, 0, 1))
sketch6.addConstraint(Sketcher.Constraint("Vertical", 0))
sketch6.addConstraint(Sketcher.Constraint("Horizontal", 1))
sketch6.addConstraint(Sketcher.Constraint("Vertical", 2))
sketch6.addConstraint(Sketcher.Constraint("Horizontal", 3))
sketch6.addConstraint(Sketcher.Constraint("DistanceX", 1, 1, 1, 2, 150.0))
sketch6.addConstraint(Sketcher.Constraint("DistanceY", 0, 1, 0, 2, 5.0))
sketch6.addConstraint(Sketcher.Constraint("DistanceX", 0, 2, -1, 1, 75.0))
sketch6.addConstraint(Sketcher.Constraint("DistanceY", -1, 1, 0, 2, 75.0))
sketch6.setExpression("Constraints[8]", "Params.sketch6_width")
sketch6.setExpression("Constraints[9]", "Params.sketch6_height")
pad2 = doc.addObject("PartDesign::Pad", "Pad001")
body.addObject(pad2)
pad2.Profile = sketch6
pad2.setExpression("Length", "Params.pad2_length")
doc.recompute()

fillet = doc.addObject("PartDesign::Fillet", "Fillet")
body.addObject(fillet)
fillet.Base = (pad2, edges_at(pad2, [
    (-75, -17, 72.5),
    (75, -17, 72.5),
    (-75, 43, 72.5),
    (75, 43, 72.5),
]))
fillet.setExpression("Radius", "Params.fillet_radius")

# Sketch on XY plane
sketch7 = doc.addObject("Sketcher::SketchObject", "Sketch006")
body.addObject(sketch7)
sketch7.AttachmentSupport = (doc.XY_Plane, [""])
sketch7.MapMode = "FlatFace"
sketch7.AttachmentOffset = App.Placement(Vector(0, 0, 75), App.Rotation())
sketch7.addGeometry(Part.Circle(Vector(-65, -10, 0), Vector(0, 0, 1), 1.6), False)
sketch7.addGeometry(Part.Circle(Vector(-51, -10, 0), Vector(0, 0, 1), 1.6), False)
sketch7.addGeometry(Part.Circle(Vector(-65, -4, 0), Vector(0, 0, 1), 1.6), False)
sketch7.addGeometry(Part.Circle(Vector(-65, 6, 0), Vector(0, 0, 1), 1.6), False)
sketch7.addGeometry(Part.Circle(Vector(-65, 12, 0), Vector(0, 0, 1), 1.6), False)
sketch7.addGeometry(Part.Circle(Vector(-51, 12, 0), Vector(0, 0, 1), 1.6), False)
sketch7.addGeometry(Part.Circle(Vector(-51, 6, 0), Vector(0, 0, 1), 1.6), False)
sketch7.addGeometry(Part.Circle(Vector(-51, -4, 0), Vector(0, 0, 1), 1.6), False)
sketch7.addGeometry(Part.Circle(Vector(51, -10, 0), Vector(0, 0, 1), 1.6), False)
sketch7.addGeometry(Part.Circle(Vector(65, -10, 0), Vector(0, 0, 1), 1.6), False)
sketch7.addGeometry(Part.Circle(Vector(51, -4, 0), Vector(0, 0, 1), 1.6), False)
sketch7.addGeometry(Part.Circle(Vector(51, 6, 0), Vector(0, 0, 1), 1.6), False)
sketch7.addGeometry(Part.Circle(Vector(51, 12, 0), Vector(0, 0, 1), 1.6), False)
sketch7.addGeometry(Part.Circle(Vector(65, -4, 0), Vector(0, 0, 1), 1.6), False)
sketch7.addGeometry(Part.Circle(Vector(65, 6, 0), Vector(0, 0, 1), 1.6), False)
sketch7.addGeometry(Part.Circle(Vector(65, 12, 0), Vector(0, 0, 1), 1.6), False)
sketch7.addGeometry(Part.Circle(Vector(-8, 25, 0), Vector(0, 0, 1), 1.6), False)
sketch7.addGeometry(Part.Circle(Vector(8, 25, 0), Vector(0, 0, 1), 1.6), False)
sketch7.addConstraint(Sketcher.Constraint("Equal", 0, 1))
sketch7.addConstraint(Sketcher.Constraint("Equal", 1, 2))
sketch7.addConstraint(Sketcher.Constraint("Equal", 2, 3))
sketch7.addConstraint(Sketcher.Constraint("Equal", 3, 4))
sketch7.addConstraint(Sketcher.Constraint("Equal", 4, 5))
sketch7.addConstraint(Sketcher.Constraint("Equal", 5, 6))
sketch7.addConstraint(Sketcher.Constraint("Equal", 6, 7))
sketch7.addConstraint(Sketcher.Constraint("Equal", 7, 8))
sketch7.addConstraint(Sketcher.Constraint("Equal", 8, 9))
sketch7.addConstraint(Sketcher.Constraint("Equal", 9, 10))
sketch7.addConstraint(Sketcher.Constraint("Equal", 10, 11))
sketch7.addConstraint(Sketcher.Constraint("Equal", 11, 12))
sketch7.addConstraint(Sketcher.Constraint("Equal", 12, 13))
sketch7.addConstraint(Sketcher.Constraint("Equal", 13, 14))
sketch7.addConstraint(Sketcher.Constraint("Equal", 14, 15))
sketch7.addConstraint(Sketcher.Constraint("Equal", 15, 16))
sketch7.addConstraint(Sketcher.Constraint("Equal", 16, 17))
sketch7.addConstraint(Sketcher.Constraint("Symmetric", 1, 3, 8, 3, -2))
sketch7.addConstraint(Sketcher.Constraint("Symmetric", 0, 3, 9, 3, -2))
sketch7.addConstraint(Sketcher.Constraint("Symmetric", 7, 3, 10, 3, -2))
sketch7.addConstraint(Sketcher.Constraint("Symmetric", 6, 3, 11, 3, -2))
sketch7.addConstraint(Sketcher.Constraint("Symmetric", 5, 3, 12, 3, -2))
sketch7.addConstraint(Sketcher.Constraint("Symmetric", 2, 3, 13, 3, -2))
sketch7.addConstraint(Sketcher.Constraint("Symmetric", 3, 3, 14, 3, -2))
sketch7.addConstraint(Sketcher.Constraint("Symmetric", 4, 3, 15, 3, -2))
sketch7.addConstraint(Sketcher.Constraint("Symmetric", 16, 3, 17, 3, -2))
sketch7.addConstraint(Sketcher.Constraint("Horizontal", 0, 3, 1, 3))
sketch7.addConstraint(Sketcher.Constraint("Horizontal", 4, 3, 5, 3))
sketch7.addConstraint(Sketcher.Constraint("Horizontal", 3, 3, 6, 3))
sketch7.addConstraint(Sketcher.Constraint("Horizontal", 2, 3, 7, 3))
sketch7.addConstraint(Sketcher.Constraint("Vertical", 0, 3, 2, 3))
sketch7.addConstraint(Sketcher.Constraint("Vertical", 2, 3, 3, 3))
sketch7.addConstraint(Sketcher.Constraint("Vertical", 3, 3, 4, 3))
sketch7.addConstraint(Sketcher.Constraint("Vertical", 1, 3, 5, 3))
sketch7.addConstraint(Sketcher.Constraint("Vertical", 5, 3, 6, 3))
sketch7.addConstraint(Sketcher.Constraint("Vertical", 6, 3, 7, 3))
sketch7.addConstraint(Sketcher.Constraint("Diameter", 0, 3.2))
sketch7.addConstraint(Sketcher.Constraint("DistanceX", 0, 3, -1, 1, 65.0))
sketch7.addConstraint(Sketcher.Constraint("DistanceY", 0, 3, -1, 1, 10.0))
sketch7.addConstraint(Sketcher.Constraint("DistanceX", 1, 3, -1, 1, 51.0))
sketch7.addConstraint(Sketcher.Constraint("DistanceY", 2, 3, -1, 1, 4.0))
sketch7.addConstraint(Sketcher.Constraint("DistanceY", -1, 1, 3, 3, 6.0))
sketch7.addConstraint(Sketcher.Constraint("DistanceY", -1, 1, 4, 3, 12.0))
sketch7.addConstraint(Sketcher.Constraint("DistanceX", 16, 3, -1, 1, 8.0))
sketch7.addConstraint(Sketcher.Constraint("DistanceY", -1, 1, 16, 3, 25.0))
sketch7.setExpression("Constraints[36]", "Params.sketch7_diameter")
pocket5 = doc.addObject("PartDesign::Pocket", "Pocket004")
body.addObject(pocket5)
pocket5.Profile = sketch7
pocket5.setExpression("Length", "Params.pocket5_length")

doc.recompute()
